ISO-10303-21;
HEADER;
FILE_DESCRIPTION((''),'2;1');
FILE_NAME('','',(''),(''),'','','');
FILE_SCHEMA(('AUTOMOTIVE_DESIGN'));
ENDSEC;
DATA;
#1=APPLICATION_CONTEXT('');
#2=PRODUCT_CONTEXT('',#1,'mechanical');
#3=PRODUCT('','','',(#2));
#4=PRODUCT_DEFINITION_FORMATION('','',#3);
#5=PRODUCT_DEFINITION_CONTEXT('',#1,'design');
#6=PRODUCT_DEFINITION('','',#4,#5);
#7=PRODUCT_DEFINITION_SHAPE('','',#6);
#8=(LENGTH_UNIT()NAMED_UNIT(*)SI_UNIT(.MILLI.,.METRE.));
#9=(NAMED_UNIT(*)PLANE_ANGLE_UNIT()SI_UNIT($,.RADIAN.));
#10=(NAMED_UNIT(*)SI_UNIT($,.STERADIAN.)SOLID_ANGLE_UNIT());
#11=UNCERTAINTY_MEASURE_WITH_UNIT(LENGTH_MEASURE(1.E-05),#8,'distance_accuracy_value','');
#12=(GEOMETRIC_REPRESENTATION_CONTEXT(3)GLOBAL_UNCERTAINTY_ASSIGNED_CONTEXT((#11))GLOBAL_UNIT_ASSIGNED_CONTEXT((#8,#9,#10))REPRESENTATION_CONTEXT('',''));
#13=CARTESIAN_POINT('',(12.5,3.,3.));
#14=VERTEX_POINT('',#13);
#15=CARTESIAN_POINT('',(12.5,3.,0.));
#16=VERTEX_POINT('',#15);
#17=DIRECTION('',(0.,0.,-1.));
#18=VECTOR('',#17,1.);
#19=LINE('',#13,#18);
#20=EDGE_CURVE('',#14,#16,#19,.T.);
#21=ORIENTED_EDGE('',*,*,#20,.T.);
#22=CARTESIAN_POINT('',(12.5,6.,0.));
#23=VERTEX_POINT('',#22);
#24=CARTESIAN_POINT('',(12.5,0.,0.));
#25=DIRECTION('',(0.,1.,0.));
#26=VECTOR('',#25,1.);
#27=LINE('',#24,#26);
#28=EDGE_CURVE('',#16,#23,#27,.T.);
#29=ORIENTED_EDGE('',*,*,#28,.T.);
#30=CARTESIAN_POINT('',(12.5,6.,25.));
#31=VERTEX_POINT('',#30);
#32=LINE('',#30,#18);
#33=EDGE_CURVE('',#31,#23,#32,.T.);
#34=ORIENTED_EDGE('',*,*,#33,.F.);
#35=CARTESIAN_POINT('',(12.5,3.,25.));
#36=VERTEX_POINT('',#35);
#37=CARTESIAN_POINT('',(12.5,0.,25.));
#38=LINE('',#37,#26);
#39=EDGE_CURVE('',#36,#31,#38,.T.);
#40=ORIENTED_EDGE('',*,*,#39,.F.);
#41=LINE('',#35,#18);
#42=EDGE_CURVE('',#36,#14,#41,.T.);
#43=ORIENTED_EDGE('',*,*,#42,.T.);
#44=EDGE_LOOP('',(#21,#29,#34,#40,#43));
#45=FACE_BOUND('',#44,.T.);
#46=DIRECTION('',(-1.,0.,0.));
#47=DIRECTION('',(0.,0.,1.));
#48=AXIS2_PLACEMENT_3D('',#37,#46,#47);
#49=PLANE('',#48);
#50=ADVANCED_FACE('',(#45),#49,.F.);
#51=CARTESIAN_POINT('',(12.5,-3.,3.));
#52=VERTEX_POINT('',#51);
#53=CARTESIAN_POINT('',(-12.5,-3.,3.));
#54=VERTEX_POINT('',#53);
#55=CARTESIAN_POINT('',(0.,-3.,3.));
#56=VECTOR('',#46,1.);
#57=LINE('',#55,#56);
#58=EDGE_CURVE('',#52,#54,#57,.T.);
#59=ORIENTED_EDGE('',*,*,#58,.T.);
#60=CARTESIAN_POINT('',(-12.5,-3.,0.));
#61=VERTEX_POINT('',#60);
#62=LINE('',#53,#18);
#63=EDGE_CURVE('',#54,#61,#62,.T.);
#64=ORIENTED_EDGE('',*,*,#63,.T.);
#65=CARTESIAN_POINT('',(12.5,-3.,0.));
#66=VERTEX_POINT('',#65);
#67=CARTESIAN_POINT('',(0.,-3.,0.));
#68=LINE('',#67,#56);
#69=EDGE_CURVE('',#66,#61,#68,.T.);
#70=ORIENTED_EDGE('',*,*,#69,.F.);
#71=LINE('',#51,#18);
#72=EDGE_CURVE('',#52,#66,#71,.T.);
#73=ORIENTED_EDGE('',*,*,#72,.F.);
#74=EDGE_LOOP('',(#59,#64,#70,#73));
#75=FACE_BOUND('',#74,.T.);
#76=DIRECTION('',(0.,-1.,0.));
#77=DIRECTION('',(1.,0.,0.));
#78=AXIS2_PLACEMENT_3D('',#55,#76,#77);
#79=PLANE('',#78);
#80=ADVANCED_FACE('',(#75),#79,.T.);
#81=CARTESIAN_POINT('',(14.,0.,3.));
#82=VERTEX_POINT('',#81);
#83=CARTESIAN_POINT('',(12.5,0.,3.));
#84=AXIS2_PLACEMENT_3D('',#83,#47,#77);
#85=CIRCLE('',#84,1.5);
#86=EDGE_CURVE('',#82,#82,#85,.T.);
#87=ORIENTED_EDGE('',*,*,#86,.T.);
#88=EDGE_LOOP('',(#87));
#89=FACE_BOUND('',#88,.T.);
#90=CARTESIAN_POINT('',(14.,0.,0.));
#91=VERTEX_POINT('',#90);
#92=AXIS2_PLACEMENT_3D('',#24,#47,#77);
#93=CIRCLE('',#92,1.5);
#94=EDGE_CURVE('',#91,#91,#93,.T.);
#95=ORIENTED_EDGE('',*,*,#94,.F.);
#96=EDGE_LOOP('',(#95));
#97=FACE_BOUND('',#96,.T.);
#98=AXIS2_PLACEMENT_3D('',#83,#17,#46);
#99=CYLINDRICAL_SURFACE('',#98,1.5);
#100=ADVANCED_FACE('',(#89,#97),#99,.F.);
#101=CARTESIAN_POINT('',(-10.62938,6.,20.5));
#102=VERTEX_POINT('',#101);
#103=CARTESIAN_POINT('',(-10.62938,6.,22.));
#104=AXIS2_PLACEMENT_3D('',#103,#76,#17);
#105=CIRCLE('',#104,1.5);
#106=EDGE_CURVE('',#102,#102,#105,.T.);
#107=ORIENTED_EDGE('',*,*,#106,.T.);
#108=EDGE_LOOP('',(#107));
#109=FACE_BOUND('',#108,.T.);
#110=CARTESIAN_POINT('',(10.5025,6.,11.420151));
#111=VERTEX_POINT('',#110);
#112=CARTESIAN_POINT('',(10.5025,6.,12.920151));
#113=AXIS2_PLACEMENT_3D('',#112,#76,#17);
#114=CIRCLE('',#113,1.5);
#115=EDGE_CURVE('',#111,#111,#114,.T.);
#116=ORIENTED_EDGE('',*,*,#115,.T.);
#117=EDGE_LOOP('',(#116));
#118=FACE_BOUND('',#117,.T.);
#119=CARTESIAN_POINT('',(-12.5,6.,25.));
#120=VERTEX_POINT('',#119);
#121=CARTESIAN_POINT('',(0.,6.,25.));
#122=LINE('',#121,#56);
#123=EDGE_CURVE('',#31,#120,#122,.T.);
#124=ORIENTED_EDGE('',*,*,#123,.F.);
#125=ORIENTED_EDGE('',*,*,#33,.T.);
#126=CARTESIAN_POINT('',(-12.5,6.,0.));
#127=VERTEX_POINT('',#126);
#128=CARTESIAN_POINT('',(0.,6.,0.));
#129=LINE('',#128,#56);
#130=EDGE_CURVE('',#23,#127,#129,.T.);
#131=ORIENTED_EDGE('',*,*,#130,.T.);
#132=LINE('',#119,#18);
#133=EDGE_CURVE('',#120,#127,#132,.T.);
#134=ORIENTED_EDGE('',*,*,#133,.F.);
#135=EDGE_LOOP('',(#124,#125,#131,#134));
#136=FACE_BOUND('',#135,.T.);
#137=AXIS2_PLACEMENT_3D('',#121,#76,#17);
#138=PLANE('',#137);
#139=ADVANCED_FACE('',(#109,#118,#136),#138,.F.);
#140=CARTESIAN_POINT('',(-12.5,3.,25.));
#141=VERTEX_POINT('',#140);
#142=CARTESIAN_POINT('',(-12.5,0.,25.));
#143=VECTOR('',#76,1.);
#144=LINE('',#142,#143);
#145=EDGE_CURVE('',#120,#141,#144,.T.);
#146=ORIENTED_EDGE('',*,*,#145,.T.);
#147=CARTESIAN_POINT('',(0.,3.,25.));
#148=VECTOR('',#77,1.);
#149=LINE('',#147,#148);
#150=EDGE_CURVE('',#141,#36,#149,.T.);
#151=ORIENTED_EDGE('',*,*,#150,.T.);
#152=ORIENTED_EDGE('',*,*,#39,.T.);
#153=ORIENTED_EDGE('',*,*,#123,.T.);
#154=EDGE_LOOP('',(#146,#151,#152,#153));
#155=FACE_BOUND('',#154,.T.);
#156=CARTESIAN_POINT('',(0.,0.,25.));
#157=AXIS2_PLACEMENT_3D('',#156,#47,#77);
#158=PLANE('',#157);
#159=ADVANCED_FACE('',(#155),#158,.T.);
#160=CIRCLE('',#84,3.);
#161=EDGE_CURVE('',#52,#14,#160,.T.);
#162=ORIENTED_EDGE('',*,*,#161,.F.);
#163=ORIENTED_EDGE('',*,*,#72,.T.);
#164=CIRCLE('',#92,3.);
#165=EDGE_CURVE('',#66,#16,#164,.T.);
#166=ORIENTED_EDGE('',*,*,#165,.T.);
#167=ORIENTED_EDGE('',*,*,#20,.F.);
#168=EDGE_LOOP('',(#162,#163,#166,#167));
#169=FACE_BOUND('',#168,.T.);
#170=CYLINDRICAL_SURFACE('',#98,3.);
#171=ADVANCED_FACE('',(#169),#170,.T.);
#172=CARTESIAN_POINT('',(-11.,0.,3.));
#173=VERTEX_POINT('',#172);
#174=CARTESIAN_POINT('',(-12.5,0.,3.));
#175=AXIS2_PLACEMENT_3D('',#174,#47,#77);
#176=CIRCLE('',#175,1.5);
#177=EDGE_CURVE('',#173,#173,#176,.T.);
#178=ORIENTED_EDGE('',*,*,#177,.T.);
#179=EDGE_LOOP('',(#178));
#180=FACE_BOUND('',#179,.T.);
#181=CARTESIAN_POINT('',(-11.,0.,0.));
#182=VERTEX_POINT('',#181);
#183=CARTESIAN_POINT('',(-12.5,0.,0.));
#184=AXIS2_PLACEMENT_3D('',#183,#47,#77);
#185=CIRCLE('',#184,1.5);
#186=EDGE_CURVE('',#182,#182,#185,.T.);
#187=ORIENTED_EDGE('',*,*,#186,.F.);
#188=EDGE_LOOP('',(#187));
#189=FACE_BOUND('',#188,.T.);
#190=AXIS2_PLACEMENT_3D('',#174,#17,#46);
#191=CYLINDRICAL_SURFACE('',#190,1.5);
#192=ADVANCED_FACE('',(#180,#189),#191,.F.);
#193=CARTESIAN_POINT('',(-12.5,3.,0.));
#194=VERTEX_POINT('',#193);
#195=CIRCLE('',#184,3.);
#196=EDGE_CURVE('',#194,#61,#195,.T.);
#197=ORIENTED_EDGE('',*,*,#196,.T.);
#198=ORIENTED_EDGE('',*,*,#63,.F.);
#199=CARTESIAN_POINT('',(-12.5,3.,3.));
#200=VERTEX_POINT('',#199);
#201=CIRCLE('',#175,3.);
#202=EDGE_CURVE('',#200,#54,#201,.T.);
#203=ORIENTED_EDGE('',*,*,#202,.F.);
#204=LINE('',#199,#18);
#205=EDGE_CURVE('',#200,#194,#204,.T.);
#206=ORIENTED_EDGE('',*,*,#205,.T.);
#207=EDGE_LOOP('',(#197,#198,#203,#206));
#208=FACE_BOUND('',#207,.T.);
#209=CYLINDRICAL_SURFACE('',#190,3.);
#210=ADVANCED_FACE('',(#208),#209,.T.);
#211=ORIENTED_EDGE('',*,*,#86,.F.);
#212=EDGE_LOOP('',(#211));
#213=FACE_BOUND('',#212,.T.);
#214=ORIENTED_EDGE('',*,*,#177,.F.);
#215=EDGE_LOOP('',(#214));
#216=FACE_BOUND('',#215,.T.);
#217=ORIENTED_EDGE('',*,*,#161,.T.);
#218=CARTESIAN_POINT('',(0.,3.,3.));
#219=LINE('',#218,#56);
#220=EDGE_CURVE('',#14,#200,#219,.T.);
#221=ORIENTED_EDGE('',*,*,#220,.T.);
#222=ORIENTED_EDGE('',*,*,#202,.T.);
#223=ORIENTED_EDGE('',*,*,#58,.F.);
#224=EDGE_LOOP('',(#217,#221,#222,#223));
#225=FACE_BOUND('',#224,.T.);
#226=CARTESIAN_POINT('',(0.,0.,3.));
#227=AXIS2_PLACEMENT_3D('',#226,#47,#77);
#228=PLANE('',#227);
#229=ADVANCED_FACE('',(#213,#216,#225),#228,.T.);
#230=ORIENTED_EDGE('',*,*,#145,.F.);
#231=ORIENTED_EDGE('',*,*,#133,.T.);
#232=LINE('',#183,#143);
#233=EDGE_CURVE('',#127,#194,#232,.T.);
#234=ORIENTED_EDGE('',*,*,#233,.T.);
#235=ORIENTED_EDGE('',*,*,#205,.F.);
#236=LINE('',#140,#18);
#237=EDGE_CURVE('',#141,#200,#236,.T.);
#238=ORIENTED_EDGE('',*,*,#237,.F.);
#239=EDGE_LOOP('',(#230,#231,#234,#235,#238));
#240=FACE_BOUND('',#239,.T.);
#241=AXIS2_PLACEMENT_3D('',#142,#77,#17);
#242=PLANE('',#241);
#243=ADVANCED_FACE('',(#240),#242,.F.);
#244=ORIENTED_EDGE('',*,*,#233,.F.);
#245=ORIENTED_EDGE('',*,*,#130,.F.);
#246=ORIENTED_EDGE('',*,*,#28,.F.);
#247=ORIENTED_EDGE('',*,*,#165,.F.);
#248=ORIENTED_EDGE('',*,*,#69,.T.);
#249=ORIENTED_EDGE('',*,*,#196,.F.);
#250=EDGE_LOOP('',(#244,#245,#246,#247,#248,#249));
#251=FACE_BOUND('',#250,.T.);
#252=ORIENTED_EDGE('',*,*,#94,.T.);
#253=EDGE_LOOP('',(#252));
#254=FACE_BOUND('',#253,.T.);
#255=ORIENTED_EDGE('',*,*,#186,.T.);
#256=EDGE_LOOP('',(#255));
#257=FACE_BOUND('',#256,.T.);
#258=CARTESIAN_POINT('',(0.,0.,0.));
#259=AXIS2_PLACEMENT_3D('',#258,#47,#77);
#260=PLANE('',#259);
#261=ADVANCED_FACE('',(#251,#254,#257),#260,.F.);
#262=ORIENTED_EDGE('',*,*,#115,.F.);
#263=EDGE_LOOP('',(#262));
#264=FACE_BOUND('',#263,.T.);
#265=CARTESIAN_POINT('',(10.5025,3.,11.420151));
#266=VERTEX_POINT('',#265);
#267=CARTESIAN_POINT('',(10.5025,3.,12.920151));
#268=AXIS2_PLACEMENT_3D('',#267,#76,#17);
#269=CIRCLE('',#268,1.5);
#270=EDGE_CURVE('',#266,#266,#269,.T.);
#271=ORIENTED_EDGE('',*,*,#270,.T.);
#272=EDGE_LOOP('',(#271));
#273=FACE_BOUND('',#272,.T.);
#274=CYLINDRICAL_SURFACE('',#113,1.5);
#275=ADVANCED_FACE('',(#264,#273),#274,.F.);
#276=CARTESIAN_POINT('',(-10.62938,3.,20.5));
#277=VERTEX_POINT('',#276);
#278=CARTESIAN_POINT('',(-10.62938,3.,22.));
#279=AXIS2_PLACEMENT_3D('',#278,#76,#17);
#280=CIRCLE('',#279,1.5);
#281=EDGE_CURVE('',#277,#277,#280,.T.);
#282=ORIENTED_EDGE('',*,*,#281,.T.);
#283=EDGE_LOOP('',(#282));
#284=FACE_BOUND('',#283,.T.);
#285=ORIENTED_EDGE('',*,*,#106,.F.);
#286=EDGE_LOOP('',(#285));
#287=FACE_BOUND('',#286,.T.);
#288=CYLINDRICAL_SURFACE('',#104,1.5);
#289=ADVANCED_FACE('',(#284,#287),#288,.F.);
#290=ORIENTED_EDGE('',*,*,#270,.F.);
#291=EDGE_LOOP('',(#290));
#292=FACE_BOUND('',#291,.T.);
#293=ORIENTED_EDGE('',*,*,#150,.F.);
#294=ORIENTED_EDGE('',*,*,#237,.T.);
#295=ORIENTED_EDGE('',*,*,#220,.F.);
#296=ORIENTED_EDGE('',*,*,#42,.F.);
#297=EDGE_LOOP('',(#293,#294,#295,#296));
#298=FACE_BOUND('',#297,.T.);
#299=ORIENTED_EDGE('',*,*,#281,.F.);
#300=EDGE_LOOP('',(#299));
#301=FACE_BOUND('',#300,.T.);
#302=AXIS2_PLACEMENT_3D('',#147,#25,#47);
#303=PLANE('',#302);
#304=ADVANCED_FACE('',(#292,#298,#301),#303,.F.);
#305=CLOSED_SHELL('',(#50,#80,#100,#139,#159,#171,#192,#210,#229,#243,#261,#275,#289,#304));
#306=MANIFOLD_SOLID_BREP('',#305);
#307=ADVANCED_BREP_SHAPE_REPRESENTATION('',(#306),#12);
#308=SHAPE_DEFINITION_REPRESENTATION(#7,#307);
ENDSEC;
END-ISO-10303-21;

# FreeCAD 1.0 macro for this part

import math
import FreeCAD as App
import Part
import Sketcher
from FreeCAD import Vector


def add_polygon(sketch, points):
    """Adds a closed chain of lines whose ends are joined by coincident constraints."""
    first, n = sketch.GeometryCount, len(points)
    for a, b in zip(points, points[1:] + points[:1]):
        sketch.addGeometry(Part.LineSegment(App.Vector(*a, 0), App.Vector(*b, 0)), False)
    for i in range(n):
        sketch.addConstraint(Sketcher.Constraint("Coincident", first + i, 2, first + (i + 1) % n, 1))

doc = App.newDocument("Part")
params = doc.addObject("Spreadsheet::Sheet", "Params")
for row, (alias, value) in enumerate([
    ("sketch1_diameter", "3 mm"),
    ("sketch1_radius", "3 mm"),
    ("sketch1_width", "25 mm"),
    ("pad1_length", "3 mm"),
    ("sketch2_width", "25 mm"),
    ("sketch2_height", "3 mm"),
    ("pad2_length", "25 mm"),
    ("sketch3_diameter", "3 mm"),
], start=1):
    params.set(f"A{row}", alias)
    params.set(f"B{row}", "=" + value)
    params.setAlias(f"B{row}", alias)

body = doc.addObject("PartDesign::Body", "Body")

# Sketch on XY plane
sketch1 = body.newObject("Sketcher::SketchObject", "Sketch")
sketch1.AttachmentSupport = (doc.getObject("XY_Plane"), [""])
sketch1.MapMode = "FlatFace"
sketch1.addGeometry(Part.LineSegment(Vector(12.5, 3, 0), Vector(-12.5, 3, 0)), False)
sketch1.addGeometry(Part.ArcOfCircle(Part.Circle(Vector(-12.5, 0, 0), Vector(0, 0, 1), 3), math.radians(90), math.radians(270)), False)
sketch1.addGeometry(Part.LineSegment(Vector(-12.5, -3, 0), Vector(12.5, -3, 0)), False)
sketch1.addGeometry(Part.ArcOfCircle(Part.Circle(Vector(12.5, 0, 0), Vector(0, 0, 1), 3), math.radians(-90), math.radians(90)), False)
sketch1.addGeometry(Part.Circle(Vector(-12.5, 0, 0), Vector(0, 0, 1), 1.5), False)
sketch1.addGeometry(Part.Circle(Vector(12.5, 0, 0), Vector(0, 0, 1), 1.5), False)
sketch1.addConstraint(Sketcher.Constraint("Tangent", 0, 2, 1, 1))
sketch1.addConstraint(Sketcher.Constraint("Tangent", 1, 2, 2, 1))
sketch1.addConstraint(Sketcher.Constraint("Tangent", 2, 2, 3, 1))
sketch1.addConstraint(Sketcher.Constraint("Tangent", 3, 2, 0, 1))
sketch1.addConstraint(Sketcher.Constraint("Horizontal", 0))
sketch1.addConstraint(Sketcher.Constraint("Horizontal", 2))
sketch1.addConstraint(Sketcher.Constraint("Coincident", 4, 3, 1, 3))
sketch1.addConstraint(Sketcher.Constraint("Coincident", 5, 3, 3, 3))
sketch1.addConstraint(Sketcher.Constraint("Equal", 4, 5))
sketch1.addConstraint(Sketcher.Constraint("Symmetric", 1, 3, 3, 3, -1, 1))
sketch1.addConstraint(Sketcher.Constraint("Diameter", 4, 3.0))
sketch1.addConstraint(Sketcher.Constraint("Radius", 1, 3.0))
sketch1.addConstraint(Sketcher.Constraint("DistanceX", 0, 2, 0, 1, 25.0))
sketch1.setExpression("Constraints[10]", "Params.sketch1_diameter")
sketch1.setExpression("Constraints[11]", "Params.sketch1_radius")
sketch1.setExpression("Constraints[12]", "Params.sketch1_width")
pad1 = body.newObject("PartDesign::Pad", "Pad")
pad1.Profile = sketch1
pad1.setExpression("Length", "Params.pad1_length")

# Sketch on XY plane
sketch2 = body.newObject("Sketcher::SketchObject", "Sketch001")
sketch2.AttachmentSupport = (doc.getObject("XY_Plane"), [""])
sketch2.MapMode = "FlatFace"
add_polygon(sketch2, [(-12.5, 6), (-12.5, 3), (12.5, 3), (12.5, 6)])  # lines 0-3
sketch2.addConstraint(Sketcher.Constraint("Vertical", 0))
sketch2.addConstraint(Sketcher.Constraint("Horizontal", 1))
sketch2.addConstraint(Sketcher.Constraint("Vertical", 2))
sketch2.addConstraint(Sketcher.Constraint("Horizontal", 3))
sketch2.addConstraint(Sketcher.Constraint("DistanceX", 1, 1, 1, 2, 25.0))
sketch2.addConstraint(Sketcher.Constraint("DistanceY", 0, 2, 0, 1, 3.0))
sketch2.addConstraint(Sketcher.Constraint("DistanceY", -1, 1, 0, 2, 3.0))
sketch2.addConstraint(Sketcher.Constraint("DistanceX", 0, 2, -1, 1, 12.5))
sketch2.setExpression("Constraints[8]", "Params.sketch2_width")
sketch2.setExpression("Constraints[9]", "Params.sketch2_height")
pad2 = body.newObject("PartDesign::Pad", "Pad001")
pad2.Profile = sketch2
pad2.setExpression("Length", "Params.pad2_length")

# Sketch on XZ plane
sketch3 = body.newObject("Sketcher::SketchObject", "Sketch002")
sketch3.AttachmentSupport = (doc.getObject("XZ_Plane"), [""])
sketch3.MapMode = "FlatFace"
sketch3.AttachmentOffset = App.Placement(Vector(0, 0, -3), App.Rotation())
sketch3.addGeometry(Part.Circle(Vector(-10.6, 22, 0), Vector(0, 0, 1), 1.5), False)
sketch3.addGeometry(Part.Circle(Vector(10.5, 12.9, 0), Vector(0, 0, 1), 1.5), False)
sketch3.addConstraint(Sketcher.Constraint("Equal", 0, 1))
sketch3.addConstraint(Sketcher.Constraint("Diameter", 0, 3.0))
sketch3.addConstraint(Sketcher.Constraint("DistanceY", -1, 1, 0, 3, 22.0))
sketch3.addConstraint(Sketcher.Constraint("DistanceX", -1, 1, 1, 3, 10.5025))
sketch3.addConstraint(Sketcher.Constraint("DistanceX", 0, 3, -1, 1, 10.62938))
sketch3.addConstraint(Sketcher.Constraint("DistanceY", -1, 1, 1, 3, 12.920151))
sketch3.setExpression("Constraints[1]", "Params.sketch3_diameter")
pocket1 = body.newObject("PartDesign::Pocket", "Pocket")
pocket1.Profile = sketch3
pocket1.Type = "ThroughAll"

doc.recompute()
